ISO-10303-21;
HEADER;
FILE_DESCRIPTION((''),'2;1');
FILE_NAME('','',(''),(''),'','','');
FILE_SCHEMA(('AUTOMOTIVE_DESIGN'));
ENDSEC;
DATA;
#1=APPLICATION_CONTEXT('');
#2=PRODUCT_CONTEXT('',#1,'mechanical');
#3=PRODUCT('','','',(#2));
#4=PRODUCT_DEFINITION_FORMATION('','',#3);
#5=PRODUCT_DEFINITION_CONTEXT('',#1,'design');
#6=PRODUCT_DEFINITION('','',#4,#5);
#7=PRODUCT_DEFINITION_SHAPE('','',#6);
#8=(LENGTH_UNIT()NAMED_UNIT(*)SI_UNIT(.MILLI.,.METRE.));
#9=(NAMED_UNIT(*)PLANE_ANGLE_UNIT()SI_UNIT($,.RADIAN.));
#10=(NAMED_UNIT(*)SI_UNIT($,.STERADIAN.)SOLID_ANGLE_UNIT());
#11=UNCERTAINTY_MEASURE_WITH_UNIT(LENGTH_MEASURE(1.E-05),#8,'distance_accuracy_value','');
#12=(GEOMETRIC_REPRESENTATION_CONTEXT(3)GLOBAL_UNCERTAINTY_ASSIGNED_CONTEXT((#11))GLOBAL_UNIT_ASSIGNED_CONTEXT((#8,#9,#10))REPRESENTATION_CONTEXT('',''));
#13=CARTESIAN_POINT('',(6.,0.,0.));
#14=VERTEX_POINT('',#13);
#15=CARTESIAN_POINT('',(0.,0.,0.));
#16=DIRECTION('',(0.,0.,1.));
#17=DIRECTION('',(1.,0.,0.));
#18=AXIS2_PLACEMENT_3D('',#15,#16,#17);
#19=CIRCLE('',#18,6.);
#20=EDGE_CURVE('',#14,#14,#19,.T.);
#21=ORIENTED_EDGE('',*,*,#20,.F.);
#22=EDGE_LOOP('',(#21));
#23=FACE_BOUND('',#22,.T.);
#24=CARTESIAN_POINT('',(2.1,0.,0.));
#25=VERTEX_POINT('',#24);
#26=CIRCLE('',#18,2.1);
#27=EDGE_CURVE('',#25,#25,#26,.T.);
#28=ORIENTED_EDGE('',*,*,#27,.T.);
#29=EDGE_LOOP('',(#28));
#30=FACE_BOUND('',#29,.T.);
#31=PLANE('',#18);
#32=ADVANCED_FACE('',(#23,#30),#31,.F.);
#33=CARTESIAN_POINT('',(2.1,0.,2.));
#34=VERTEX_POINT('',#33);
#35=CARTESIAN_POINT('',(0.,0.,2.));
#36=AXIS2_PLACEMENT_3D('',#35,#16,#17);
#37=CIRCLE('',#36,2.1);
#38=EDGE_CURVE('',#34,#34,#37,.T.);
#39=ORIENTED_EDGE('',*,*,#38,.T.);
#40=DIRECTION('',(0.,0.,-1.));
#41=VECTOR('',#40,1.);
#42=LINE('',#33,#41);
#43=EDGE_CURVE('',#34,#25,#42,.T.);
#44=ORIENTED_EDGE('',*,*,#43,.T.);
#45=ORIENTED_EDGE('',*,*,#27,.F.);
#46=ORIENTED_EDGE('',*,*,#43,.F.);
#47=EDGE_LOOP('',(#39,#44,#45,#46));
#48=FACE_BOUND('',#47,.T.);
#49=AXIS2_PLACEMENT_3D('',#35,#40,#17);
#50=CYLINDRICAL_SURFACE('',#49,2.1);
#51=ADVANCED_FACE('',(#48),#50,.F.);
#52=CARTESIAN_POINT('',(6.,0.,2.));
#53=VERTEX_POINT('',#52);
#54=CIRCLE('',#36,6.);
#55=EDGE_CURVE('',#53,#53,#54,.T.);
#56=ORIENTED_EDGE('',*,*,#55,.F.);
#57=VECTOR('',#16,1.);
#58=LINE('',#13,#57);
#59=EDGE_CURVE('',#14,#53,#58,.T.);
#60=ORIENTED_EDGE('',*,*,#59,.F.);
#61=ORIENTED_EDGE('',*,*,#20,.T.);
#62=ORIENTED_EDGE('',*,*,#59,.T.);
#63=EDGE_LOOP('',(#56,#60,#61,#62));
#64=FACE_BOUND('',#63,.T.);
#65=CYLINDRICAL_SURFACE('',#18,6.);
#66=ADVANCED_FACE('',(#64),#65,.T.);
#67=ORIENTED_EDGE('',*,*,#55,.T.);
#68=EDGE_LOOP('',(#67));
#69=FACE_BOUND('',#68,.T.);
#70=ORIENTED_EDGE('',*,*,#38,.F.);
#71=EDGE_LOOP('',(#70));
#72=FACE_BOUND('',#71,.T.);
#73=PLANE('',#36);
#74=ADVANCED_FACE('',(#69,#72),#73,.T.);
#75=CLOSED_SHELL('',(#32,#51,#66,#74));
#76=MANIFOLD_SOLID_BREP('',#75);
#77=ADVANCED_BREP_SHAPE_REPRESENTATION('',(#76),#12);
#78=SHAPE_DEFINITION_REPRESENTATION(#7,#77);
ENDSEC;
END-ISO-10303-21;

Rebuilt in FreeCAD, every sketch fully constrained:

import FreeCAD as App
import Part
import Sketcher
from FreeCAD import Vector


def add_polygon(sketch, points):
    """Adds a closed chain of lines whose ends are joined by coincident constraints."""
    first, n = sketch.GeometryCount, len(points)
    for a, b in zip(points, points[1:] + points[:1]):
        sketch.addGeometry(Part.LineSegment(App.Vector(*a, 0), App.Vector(*b, 0)), False)
    for i in range(n):
        sketch.addConstraint(Sketcher.Constraint("Coincident", first + i, 2, first + (i + 1) % n, 1))

doc = App.newDocument("Part")
body = doc.addObject("PartDesign::Body", "Body")

sketch1 = doc.addObject("Sketcher::SketchObject", "Sketch")
body.addObject(sketch1)
sketch1.AttachmentSupport = (doc.XZ_Plane, [""])
sketch1.MapMode = "FlatFace"
add_polygon(sketch1, [(2.1, 0), (2.1, 2), (6, 2), (6, 0)])
sketch1.addConstraint([
    Sketcher.Constraint("Vertical", 0),
    Sketcher.Constraint("Horizontal", 1),
    Sketcher.Constraint("Vertical", 2),
    Sketcher.Constraint("Horizontal", 3),
    Sketcher.Constraint("PointOnObject", 2, 2, -1),
    Sketcher.Constraint("DistanceY", 0, 1, 0, 2, 2.0),
    Sketcher.Constraint("DistanceX", 1, 1, 1, 2, 3.9),
    Sketcher.Constraint("DistanceX", -1, 1, 1, 2, 6.0),
])
revolution = doc.addObject("PartDesign::Revolution", "Revolution")
body.addObject(revolution)
revolution.Profile = sketch1
revolution.ReferenceAxis = (sketch1, ["V_Axis"])
revolution.Angle = 360

doc.recompute()
